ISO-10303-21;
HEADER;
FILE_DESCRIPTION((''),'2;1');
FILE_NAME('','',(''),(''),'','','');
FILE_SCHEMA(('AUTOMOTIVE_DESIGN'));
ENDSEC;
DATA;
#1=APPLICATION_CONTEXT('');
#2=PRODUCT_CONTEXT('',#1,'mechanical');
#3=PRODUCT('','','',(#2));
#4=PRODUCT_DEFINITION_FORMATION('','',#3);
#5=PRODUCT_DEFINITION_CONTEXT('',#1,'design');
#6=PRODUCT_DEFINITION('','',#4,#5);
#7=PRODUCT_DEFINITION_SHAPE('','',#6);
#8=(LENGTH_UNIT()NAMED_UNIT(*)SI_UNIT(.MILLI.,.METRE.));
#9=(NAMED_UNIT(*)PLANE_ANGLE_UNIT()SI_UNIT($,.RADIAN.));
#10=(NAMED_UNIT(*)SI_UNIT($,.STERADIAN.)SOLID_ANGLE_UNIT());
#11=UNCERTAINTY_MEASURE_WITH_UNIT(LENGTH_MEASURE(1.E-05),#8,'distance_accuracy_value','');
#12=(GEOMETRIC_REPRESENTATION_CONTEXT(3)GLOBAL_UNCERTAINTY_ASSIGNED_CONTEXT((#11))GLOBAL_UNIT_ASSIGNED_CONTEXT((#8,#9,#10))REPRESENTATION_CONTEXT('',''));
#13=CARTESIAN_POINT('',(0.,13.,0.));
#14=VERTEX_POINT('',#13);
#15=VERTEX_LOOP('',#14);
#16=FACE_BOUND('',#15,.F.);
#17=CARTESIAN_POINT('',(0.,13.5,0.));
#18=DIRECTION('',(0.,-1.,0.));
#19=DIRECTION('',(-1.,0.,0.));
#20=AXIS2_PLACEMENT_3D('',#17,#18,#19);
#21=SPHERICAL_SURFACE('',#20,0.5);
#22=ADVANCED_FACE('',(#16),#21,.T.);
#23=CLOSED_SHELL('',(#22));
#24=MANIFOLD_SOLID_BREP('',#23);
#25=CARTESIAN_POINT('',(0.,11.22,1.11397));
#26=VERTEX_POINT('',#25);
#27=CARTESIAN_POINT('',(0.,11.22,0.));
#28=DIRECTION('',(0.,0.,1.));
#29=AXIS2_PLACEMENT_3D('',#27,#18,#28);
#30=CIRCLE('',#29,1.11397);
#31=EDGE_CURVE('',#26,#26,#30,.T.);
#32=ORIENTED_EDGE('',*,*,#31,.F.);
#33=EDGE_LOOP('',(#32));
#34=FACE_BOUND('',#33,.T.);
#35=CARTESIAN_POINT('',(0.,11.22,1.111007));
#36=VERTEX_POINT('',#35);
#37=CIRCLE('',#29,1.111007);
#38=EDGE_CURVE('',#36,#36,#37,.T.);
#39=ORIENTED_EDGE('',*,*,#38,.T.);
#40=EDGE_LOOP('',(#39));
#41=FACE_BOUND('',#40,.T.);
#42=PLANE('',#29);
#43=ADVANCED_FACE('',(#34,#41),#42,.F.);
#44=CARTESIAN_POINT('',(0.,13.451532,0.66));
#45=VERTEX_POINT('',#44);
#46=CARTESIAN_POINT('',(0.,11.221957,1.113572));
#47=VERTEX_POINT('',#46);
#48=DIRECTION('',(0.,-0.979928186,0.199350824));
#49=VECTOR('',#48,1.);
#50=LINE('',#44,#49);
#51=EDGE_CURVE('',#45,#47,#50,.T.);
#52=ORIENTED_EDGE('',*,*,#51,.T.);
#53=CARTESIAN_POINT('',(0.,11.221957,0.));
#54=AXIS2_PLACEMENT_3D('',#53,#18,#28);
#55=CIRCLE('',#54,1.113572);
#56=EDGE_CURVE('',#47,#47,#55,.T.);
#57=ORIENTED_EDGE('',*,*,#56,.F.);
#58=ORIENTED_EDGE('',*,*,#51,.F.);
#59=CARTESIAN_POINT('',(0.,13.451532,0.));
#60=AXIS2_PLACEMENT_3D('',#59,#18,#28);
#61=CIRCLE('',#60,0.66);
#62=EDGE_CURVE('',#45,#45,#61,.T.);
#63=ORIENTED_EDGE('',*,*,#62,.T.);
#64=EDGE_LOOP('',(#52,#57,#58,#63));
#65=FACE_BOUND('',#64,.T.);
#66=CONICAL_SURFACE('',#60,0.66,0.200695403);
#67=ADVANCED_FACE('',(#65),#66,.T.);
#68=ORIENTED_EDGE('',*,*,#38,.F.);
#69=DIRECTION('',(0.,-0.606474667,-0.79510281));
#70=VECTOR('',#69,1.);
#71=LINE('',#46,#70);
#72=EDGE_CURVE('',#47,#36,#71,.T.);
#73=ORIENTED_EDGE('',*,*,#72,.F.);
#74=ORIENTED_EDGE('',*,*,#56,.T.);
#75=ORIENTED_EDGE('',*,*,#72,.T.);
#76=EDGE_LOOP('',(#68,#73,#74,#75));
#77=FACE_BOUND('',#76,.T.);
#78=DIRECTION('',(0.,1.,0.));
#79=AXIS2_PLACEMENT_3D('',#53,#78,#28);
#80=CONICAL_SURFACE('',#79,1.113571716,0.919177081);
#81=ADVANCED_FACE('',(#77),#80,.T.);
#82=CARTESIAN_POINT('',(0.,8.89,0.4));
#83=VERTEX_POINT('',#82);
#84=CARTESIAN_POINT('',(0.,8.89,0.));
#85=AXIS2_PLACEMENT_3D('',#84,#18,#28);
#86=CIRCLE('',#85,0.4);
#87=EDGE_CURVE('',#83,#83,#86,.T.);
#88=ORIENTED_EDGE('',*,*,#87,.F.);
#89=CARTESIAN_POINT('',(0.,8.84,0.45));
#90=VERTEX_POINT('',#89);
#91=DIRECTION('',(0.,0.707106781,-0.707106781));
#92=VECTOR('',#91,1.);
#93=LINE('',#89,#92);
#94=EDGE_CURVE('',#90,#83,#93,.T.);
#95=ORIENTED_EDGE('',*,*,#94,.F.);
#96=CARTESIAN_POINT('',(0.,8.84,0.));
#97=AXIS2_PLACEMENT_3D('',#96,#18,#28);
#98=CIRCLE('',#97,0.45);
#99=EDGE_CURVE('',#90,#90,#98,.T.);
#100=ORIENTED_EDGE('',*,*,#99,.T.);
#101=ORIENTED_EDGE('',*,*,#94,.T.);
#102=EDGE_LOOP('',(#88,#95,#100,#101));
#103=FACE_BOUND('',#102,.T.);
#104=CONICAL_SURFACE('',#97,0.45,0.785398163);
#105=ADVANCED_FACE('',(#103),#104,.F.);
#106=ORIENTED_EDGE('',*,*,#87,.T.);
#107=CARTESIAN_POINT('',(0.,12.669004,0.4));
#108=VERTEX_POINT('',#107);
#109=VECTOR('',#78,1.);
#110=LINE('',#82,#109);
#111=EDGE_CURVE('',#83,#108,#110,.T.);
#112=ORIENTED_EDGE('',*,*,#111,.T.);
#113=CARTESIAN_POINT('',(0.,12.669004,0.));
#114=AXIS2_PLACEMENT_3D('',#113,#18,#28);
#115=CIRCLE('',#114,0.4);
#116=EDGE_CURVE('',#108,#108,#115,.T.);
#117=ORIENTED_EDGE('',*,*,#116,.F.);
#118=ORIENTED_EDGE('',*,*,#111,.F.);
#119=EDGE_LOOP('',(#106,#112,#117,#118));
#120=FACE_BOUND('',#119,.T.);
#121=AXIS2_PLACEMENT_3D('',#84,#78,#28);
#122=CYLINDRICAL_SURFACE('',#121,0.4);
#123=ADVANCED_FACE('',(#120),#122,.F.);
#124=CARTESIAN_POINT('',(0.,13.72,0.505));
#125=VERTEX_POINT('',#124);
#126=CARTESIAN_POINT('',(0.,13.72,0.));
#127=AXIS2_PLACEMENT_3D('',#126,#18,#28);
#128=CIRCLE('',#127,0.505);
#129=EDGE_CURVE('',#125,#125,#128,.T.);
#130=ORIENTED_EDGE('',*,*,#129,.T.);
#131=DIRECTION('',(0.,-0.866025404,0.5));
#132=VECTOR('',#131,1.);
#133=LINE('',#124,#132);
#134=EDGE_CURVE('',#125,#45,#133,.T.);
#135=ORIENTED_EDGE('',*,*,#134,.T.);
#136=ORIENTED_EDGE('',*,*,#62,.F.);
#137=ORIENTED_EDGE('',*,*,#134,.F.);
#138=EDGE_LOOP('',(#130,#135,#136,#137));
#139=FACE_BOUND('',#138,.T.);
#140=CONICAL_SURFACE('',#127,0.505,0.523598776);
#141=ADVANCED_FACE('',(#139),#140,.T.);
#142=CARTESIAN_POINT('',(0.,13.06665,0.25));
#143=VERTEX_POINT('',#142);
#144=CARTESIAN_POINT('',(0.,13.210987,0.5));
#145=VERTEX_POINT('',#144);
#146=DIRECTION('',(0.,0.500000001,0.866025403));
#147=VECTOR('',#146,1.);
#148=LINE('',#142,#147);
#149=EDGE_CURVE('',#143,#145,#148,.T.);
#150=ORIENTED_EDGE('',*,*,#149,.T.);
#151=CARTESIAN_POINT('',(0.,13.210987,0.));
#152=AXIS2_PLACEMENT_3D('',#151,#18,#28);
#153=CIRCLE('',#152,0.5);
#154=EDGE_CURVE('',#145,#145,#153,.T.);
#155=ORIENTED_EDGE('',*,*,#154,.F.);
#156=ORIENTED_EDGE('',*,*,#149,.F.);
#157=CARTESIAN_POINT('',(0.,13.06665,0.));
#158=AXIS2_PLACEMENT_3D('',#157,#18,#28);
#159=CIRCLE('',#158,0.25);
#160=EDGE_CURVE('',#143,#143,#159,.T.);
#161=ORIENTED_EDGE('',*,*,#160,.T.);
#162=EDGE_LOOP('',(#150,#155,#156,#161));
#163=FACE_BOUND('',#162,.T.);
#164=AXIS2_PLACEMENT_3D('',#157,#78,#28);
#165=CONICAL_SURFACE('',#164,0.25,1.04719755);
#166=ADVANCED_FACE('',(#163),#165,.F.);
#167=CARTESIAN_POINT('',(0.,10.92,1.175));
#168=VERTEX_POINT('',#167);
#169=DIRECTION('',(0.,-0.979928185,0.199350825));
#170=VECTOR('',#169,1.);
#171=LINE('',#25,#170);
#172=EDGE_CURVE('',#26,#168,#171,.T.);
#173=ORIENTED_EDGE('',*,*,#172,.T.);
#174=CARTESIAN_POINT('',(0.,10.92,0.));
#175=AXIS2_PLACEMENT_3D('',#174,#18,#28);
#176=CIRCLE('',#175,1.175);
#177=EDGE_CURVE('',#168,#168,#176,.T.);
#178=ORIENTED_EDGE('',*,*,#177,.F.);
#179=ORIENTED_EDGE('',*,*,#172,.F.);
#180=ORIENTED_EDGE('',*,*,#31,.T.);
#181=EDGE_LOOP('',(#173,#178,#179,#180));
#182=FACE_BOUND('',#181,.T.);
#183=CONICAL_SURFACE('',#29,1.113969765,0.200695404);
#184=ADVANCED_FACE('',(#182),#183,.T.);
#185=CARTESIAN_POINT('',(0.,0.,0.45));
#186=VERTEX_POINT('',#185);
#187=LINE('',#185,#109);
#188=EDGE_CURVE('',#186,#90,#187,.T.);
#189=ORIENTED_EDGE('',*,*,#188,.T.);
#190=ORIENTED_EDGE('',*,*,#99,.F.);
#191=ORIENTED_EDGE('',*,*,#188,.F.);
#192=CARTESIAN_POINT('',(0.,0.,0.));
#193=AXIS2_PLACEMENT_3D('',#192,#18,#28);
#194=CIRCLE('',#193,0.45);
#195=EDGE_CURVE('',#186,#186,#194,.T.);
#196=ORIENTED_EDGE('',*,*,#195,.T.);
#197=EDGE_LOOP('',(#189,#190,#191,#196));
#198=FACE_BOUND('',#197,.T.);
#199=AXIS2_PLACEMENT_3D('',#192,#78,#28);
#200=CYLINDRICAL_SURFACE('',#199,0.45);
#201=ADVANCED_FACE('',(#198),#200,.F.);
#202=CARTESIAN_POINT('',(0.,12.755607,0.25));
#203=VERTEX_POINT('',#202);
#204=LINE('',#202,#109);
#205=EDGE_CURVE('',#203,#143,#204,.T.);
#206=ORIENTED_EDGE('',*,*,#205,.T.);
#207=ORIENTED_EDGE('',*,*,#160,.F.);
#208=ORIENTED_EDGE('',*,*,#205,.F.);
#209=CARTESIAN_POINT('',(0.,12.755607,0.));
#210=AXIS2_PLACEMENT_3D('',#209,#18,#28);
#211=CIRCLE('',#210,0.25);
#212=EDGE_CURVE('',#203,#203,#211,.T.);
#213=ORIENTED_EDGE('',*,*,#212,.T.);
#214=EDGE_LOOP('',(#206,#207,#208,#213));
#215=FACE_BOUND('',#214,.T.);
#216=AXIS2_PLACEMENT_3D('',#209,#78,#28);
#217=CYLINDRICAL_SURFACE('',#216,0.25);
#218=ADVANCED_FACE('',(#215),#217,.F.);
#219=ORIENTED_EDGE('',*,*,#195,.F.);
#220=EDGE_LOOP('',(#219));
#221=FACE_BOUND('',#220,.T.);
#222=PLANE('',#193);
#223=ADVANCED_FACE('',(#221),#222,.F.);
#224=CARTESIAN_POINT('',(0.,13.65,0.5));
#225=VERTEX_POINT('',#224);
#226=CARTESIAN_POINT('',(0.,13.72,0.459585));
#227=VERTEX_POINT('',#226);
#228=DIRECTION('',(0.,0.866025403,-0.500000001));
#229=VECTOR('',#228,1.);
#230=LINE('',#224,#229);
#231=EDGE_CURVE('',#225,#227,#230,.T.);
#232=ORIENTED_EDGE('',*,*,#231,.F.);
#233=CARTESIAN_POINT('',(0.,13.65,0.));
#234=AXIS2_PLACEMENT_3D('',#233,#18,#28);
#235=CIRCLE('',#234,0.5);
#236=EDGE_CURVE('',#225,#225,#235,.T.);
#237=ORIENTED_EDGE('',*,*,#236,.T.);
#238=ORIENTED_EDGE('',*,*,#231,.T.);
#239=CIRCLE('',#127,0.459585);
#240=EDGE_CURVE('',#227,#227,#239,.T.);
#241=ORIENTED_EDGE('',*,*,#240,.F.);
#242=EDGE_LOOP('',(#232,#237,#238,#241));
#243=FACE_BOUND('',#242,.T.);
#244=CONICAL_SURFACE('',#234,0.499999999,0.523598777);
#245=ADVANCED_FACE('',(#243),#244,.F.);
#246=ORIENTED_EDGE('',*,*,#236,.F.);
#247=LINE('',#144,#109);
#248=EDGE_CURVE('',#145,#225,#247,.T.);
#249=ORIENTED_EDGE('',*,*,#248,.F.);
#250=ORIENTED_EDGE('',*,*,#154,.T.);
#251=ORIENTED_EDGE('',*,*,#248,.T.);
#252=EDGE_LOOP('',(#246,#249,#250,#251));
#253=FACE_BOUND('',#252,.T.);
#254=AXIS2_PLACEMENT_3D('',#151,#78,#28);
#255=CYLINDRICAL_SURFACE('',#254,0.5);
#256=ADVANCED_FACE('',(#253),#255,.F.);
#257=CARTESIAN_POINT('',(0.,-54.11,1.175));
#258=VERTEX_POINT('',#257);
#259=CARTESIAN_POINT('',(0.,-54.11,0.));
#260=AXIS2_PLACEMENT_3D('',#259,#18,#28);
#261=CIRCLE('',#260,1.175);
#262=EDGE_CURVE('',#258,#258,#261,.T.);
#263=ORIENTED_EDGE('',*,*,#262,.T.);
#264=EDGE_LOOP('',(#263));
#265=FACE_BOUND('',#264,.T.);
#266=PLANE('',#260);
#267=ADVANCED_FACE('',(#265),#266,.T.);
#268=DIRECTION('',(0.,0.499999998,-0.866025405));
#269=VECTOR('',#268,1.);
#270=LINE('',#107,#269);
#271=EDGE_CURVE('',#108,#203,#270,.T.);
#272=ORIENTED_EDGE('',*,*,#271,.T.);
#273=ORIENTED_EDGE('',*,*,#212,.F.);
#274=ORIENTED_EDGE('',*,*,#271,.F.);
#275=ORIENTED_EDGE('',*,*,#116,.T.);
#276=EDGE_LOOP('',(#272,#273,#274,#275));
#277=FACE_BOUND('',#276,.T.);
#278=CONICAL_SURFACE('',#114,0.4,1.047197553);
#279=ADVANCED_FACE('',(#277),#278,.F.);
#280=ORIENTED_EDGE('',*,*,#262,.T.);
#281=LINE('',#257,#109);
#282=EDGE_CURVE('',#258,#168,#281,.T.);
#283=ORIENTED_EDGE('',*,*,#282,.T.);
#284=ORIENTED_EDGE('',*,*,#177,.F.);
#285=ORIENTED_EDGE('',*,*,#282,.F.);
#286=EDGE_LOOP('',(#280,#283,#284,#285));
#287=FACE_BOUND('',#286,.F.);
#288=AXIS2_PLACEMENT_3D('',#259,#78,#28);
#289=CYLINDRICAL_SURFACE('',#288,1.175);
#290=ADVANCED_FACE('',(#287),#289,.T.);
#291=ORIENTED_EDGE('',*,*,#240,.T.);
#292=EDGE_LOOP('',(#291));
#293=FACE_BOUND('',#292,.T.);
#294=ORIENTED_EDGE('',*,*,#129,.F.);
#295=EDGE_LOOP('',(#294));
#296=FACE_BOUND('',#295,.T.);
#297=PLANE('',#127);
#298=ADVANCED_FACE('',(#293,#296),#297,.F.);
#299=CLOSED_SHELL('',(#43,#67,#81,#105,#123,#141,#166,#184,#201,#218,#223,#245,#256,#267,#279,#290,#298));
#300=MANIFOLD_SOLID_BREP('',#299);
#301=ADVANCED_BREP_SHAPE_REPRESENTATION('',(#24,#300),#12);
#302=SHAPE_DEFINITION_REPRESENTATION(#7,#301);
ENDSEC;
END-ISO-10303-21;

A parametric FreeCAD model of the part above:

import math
import FreeCAD as App
import Part
import Sketcher
from FreeCAD import Vector
Q = App.Units.Quantity

doc = App.newDocument("Part")
body = doc.addObject("PartDesign::Body", "Body")

sketch1 = body.newObject("Sketcher::SketchObject", "Sketch")
sketch1.AttachmentSupport = (doc.getObject("YZ_Plane"), [""])
sketch1.MapMode = "FlatFace"
sketch1.addGeometry([
    Part.LineSegment(Vector(12.7556, -0.25, 0), Vector(12.669, -0.4, 0)),
    Part.LineSegment(Vector(12.669, -0.4, 0), Vector(8.89, -0.4, 0)),
    Part.LineSegment(Vector(8.89, -0.4, 0), Vector(8.84, -0.45, 0)),
    Part.LineSegment(Vector(8.84, -0.45, 0), Vector(0, -0.45, 0)),
    Part.LineSegment(Vector(0, -0.45, 0), Vector(0, 0, 0)),
    Part.LineSegment(Vector(0, 0, 0), Vector(-54.11, 0, 0)),
    Part.LineSegment(Vector(-54.11, 0, 0), Vector(-54.11, -1.175, 0)),
    Part.LineSegment(Vector(-54.11, -1.175, 0), Vector(10.92, -1.175, 0)),
    Part.LineSegment(Vector(10.92, -1.175, 0), Vector(11.22, -1.114, 0)),
    Part.LineSegment(Vector(11.22, -1.114, 0), Vector(11.22, -1.111, 0)),
    Part.LineSegment(Vector(11.22, -1.111, 0), Vector(11.222, -1.1136, 0)),
    Part.LineSegment(Vector(11.222, -1.1136, 0), Vector(13.4515, -0.66, 0)),
    Part.LineSegment(Vector(13.4515, -0.66, 0), Vector(13.72, -0.505, 0)),
    Part.LineSegment(Vector(13.72, -0.505, 0), Vector(13.72, -0.4596, 0)),
    Part.LineSegment(Vector(13.72, -0.4596, 0), Vector(13.65, -0.5, 0)),
    Part.LineSegment(Vector(13.65, -0.5, 0), Vector(13.211, -0.5, 0)),
    Part.LineSegment(Vector(13.211, -0.5, 0), Vector(13.0666, -0.25, 0)),
    Part.LineSegment(Vector(13.0666, -0.25, 0), Vector(12.7556, -0.25, 0)),
], False)
sketch1.addConstraint([
    Sketcher.Constraint("Coincident", 0, 2, 1, 1),
    Sketcher.Constraint("Coincident", 1, 2, 2, 1),
    Sketcher.Constraint("Coincident", 2, 2, 3, 1),
    Sketcher.Constraint("Coincident", 3, 2, 4, 1),
    Sketcher.Constraint("Coincident", 4, 2, 5, 1),
    Sketcher.Constraint("Coincident", 5, 2, 6, 1),
    Sketcher.Constraint("Coincident", 6, 2, 7, 1),
    Sketcher.Constraint("Coincident", 7, 2, 8, 1),
    Sketcher.Constraint("Coincident", 8, 2, 9, 1),
    Sketcher.Constraint("Coincident", 9, 2, 10, 1),
    Sketcher.Constraint("Coincident", 10, 2, 11, 1),
    Sketcher.Constraint("Coincident", 11, 2, 12, 1),
    Sketcher.Constraint("Coincident", 12, 2, 13, 1),
    Sketcher.Constraint("Coincident", 13, 2, 14, 1),
    Sketcher.Constraint("Coincident", 14, 2, 15, 1),
    Sketcher.Constraint("Coincident", 15, 2, 16, 1),
    Sketcher.Constraint("Coincident", 16, 2, 17, 1),
    Sketcher.Constraint("Coincident", 17, 2, 0, 1),
    Sketcher.Constraint("Horizontal", 1),
    Sketcher.Constraint("Horizontal", 3),
    Sketcher.Constraint("Vertical", 4),
    Sketcher.Constraint("Horizontal", 5),
    Sketcher.Constraint("Vertical", 6),
    Sketcher.Constraint("Horizontal", 7),
    Sketcher.Constraint("Vertical", 9),
    Sketcher.Constraint("Vertical", 13),
    Sketcher.Constraint("Horizontal", 15),
    Sketcher.Constraint("Horizontal", 17),
    Sketcher.Constraint("Coincident", 4, 2, -1, 1),
    Sketcher.Constraint("Parallel", 8, 11),
    Sketcher.Constraint("Parallel", 12, 14),
    Sketcher.Constraint("Perpendicular", 14, 16),
    Sketcher.Constraint("Angle", 0, Q("-120 deg")),
    Sketcher.Constraint("Angle", 2, Q("-135 deg")),
    Sketcher.Constraint("Angle", 12, Q("30 deg")),
    Sketcher.Constraint("DistanceX", 5, 2, 1, 2, Q("63 mm")),
    Sketcher.Constraint("DistanceX", 3, 2, 3, 1, Q("8.84 mm")),
    Sketcher.Constraint("DistanceX", 5, 2, 5, 1, Q("54.11 mm")),
    Sketcher.Constraint("DistanceX", 7, 1, 7, 2, Q("65.03 mm")),
    Sketcher.Constraint("DistanceY", 4, 1, 4, 2, Q("0.45 mm")),
    Sketcher.Constraint("DistanceY", 14, 2, -1, 1, Q("0.5 mm")),
    Sketcher.Constraint("DistanceX", 7, 2, 8, 2, Q("0.3 mm")),
    Sketcher.Constraint("DistanceX", 9, 2, 12, 2, Q("2.5 mm")),
    Sketcher.Constraint("Distance", 12, Q("0.31 mm")),
    Sketcher.Constraint("DistanceY", 6, 2, 6, 1, Q("1.175 mm")),
    Sketcher.Constraint("DistanceY", 11, 2, -1, 1, Q("0.66 mm")),
    Sketcher.Constraint("DistanceX", -1, 1, 14, 2, Q("13.65 mm")),
    Sketcher.Constraint("DistanceY", 16, 2, -1, 1, Q("0.25 mm")),
    Sketcher.Constraint("DistanceY", 8, 2, 10, 2, Q("0.000398 mm")),
    Sketcher.Constraint("DistanceX", 1, 2, 1, 1, Q("3.779004 mm")),
    Sketcher.Constraint("DistanceX", 15, 2, 15, 1, Q("0.439013 mm")),
    Sketcher.Constraint("DistanceY", 9, 1, 9, 2, Q("0.002963 mm")),
    Sketcher.Constraint("DistanceY", 8, 2, -1, 1, Q("1.11397 mm")),
])
revolution = body.newObject("PartDesign::Revolution", "Revolution")
revolution.Profile = sketch1
revolution.ReferenceAxis = (sketch1, ["H_Axis"])
revolution.Angle = 360
body2 = doc.addObject("PartDesign::Body", "Body001")

sketch2 = body2.newObject("Sketcher::SketchObject", "Sketch001")
sketch2.AttachmentSupport = (doc.getObject("XY_Plane001"), [""])
sketch2.MapMode = "FlatFace"
sketch2.addGeometry([
    Part.LineSegment(Vector(0, 13, 0), Vector(0, 14, 0)),
    Part.ArcOfCircle(Part.Circle(Vector(0, 13.5, 0), Vector(0, 0, 1), 0.5), math.radians(90), math.radians(270)),
], False)
sketch2.addConstraint([
    Sketcher.Constraint("Coincident", 0, 1, 1, 2),
    Sketcher.Constraint("Coincident", 1, 1, 0, 2),
    Sketcher.Constraint("Vertical", 0),
    Sketcher.Constraint("PointOnObject", 1, 3, -2),
    Sketcher.Constraint("PointOnObject", 0, 1, -2),
    Sketcher.Constraint("Radius", 1, Q("0.5 mm")),
    Sketcher.Constraint("DistanceY", -1, 1, 0, 1, Q("13 mm")),
])
revolution2 = body2.newObject("PartDesign::Revolution", "Revolution001")
revolution2.Profile = sketch2
revolution2.ReferenceAxis = (sketch2, ["V_Axis"])
revolution2.Angle = 360

doc.recompute()
